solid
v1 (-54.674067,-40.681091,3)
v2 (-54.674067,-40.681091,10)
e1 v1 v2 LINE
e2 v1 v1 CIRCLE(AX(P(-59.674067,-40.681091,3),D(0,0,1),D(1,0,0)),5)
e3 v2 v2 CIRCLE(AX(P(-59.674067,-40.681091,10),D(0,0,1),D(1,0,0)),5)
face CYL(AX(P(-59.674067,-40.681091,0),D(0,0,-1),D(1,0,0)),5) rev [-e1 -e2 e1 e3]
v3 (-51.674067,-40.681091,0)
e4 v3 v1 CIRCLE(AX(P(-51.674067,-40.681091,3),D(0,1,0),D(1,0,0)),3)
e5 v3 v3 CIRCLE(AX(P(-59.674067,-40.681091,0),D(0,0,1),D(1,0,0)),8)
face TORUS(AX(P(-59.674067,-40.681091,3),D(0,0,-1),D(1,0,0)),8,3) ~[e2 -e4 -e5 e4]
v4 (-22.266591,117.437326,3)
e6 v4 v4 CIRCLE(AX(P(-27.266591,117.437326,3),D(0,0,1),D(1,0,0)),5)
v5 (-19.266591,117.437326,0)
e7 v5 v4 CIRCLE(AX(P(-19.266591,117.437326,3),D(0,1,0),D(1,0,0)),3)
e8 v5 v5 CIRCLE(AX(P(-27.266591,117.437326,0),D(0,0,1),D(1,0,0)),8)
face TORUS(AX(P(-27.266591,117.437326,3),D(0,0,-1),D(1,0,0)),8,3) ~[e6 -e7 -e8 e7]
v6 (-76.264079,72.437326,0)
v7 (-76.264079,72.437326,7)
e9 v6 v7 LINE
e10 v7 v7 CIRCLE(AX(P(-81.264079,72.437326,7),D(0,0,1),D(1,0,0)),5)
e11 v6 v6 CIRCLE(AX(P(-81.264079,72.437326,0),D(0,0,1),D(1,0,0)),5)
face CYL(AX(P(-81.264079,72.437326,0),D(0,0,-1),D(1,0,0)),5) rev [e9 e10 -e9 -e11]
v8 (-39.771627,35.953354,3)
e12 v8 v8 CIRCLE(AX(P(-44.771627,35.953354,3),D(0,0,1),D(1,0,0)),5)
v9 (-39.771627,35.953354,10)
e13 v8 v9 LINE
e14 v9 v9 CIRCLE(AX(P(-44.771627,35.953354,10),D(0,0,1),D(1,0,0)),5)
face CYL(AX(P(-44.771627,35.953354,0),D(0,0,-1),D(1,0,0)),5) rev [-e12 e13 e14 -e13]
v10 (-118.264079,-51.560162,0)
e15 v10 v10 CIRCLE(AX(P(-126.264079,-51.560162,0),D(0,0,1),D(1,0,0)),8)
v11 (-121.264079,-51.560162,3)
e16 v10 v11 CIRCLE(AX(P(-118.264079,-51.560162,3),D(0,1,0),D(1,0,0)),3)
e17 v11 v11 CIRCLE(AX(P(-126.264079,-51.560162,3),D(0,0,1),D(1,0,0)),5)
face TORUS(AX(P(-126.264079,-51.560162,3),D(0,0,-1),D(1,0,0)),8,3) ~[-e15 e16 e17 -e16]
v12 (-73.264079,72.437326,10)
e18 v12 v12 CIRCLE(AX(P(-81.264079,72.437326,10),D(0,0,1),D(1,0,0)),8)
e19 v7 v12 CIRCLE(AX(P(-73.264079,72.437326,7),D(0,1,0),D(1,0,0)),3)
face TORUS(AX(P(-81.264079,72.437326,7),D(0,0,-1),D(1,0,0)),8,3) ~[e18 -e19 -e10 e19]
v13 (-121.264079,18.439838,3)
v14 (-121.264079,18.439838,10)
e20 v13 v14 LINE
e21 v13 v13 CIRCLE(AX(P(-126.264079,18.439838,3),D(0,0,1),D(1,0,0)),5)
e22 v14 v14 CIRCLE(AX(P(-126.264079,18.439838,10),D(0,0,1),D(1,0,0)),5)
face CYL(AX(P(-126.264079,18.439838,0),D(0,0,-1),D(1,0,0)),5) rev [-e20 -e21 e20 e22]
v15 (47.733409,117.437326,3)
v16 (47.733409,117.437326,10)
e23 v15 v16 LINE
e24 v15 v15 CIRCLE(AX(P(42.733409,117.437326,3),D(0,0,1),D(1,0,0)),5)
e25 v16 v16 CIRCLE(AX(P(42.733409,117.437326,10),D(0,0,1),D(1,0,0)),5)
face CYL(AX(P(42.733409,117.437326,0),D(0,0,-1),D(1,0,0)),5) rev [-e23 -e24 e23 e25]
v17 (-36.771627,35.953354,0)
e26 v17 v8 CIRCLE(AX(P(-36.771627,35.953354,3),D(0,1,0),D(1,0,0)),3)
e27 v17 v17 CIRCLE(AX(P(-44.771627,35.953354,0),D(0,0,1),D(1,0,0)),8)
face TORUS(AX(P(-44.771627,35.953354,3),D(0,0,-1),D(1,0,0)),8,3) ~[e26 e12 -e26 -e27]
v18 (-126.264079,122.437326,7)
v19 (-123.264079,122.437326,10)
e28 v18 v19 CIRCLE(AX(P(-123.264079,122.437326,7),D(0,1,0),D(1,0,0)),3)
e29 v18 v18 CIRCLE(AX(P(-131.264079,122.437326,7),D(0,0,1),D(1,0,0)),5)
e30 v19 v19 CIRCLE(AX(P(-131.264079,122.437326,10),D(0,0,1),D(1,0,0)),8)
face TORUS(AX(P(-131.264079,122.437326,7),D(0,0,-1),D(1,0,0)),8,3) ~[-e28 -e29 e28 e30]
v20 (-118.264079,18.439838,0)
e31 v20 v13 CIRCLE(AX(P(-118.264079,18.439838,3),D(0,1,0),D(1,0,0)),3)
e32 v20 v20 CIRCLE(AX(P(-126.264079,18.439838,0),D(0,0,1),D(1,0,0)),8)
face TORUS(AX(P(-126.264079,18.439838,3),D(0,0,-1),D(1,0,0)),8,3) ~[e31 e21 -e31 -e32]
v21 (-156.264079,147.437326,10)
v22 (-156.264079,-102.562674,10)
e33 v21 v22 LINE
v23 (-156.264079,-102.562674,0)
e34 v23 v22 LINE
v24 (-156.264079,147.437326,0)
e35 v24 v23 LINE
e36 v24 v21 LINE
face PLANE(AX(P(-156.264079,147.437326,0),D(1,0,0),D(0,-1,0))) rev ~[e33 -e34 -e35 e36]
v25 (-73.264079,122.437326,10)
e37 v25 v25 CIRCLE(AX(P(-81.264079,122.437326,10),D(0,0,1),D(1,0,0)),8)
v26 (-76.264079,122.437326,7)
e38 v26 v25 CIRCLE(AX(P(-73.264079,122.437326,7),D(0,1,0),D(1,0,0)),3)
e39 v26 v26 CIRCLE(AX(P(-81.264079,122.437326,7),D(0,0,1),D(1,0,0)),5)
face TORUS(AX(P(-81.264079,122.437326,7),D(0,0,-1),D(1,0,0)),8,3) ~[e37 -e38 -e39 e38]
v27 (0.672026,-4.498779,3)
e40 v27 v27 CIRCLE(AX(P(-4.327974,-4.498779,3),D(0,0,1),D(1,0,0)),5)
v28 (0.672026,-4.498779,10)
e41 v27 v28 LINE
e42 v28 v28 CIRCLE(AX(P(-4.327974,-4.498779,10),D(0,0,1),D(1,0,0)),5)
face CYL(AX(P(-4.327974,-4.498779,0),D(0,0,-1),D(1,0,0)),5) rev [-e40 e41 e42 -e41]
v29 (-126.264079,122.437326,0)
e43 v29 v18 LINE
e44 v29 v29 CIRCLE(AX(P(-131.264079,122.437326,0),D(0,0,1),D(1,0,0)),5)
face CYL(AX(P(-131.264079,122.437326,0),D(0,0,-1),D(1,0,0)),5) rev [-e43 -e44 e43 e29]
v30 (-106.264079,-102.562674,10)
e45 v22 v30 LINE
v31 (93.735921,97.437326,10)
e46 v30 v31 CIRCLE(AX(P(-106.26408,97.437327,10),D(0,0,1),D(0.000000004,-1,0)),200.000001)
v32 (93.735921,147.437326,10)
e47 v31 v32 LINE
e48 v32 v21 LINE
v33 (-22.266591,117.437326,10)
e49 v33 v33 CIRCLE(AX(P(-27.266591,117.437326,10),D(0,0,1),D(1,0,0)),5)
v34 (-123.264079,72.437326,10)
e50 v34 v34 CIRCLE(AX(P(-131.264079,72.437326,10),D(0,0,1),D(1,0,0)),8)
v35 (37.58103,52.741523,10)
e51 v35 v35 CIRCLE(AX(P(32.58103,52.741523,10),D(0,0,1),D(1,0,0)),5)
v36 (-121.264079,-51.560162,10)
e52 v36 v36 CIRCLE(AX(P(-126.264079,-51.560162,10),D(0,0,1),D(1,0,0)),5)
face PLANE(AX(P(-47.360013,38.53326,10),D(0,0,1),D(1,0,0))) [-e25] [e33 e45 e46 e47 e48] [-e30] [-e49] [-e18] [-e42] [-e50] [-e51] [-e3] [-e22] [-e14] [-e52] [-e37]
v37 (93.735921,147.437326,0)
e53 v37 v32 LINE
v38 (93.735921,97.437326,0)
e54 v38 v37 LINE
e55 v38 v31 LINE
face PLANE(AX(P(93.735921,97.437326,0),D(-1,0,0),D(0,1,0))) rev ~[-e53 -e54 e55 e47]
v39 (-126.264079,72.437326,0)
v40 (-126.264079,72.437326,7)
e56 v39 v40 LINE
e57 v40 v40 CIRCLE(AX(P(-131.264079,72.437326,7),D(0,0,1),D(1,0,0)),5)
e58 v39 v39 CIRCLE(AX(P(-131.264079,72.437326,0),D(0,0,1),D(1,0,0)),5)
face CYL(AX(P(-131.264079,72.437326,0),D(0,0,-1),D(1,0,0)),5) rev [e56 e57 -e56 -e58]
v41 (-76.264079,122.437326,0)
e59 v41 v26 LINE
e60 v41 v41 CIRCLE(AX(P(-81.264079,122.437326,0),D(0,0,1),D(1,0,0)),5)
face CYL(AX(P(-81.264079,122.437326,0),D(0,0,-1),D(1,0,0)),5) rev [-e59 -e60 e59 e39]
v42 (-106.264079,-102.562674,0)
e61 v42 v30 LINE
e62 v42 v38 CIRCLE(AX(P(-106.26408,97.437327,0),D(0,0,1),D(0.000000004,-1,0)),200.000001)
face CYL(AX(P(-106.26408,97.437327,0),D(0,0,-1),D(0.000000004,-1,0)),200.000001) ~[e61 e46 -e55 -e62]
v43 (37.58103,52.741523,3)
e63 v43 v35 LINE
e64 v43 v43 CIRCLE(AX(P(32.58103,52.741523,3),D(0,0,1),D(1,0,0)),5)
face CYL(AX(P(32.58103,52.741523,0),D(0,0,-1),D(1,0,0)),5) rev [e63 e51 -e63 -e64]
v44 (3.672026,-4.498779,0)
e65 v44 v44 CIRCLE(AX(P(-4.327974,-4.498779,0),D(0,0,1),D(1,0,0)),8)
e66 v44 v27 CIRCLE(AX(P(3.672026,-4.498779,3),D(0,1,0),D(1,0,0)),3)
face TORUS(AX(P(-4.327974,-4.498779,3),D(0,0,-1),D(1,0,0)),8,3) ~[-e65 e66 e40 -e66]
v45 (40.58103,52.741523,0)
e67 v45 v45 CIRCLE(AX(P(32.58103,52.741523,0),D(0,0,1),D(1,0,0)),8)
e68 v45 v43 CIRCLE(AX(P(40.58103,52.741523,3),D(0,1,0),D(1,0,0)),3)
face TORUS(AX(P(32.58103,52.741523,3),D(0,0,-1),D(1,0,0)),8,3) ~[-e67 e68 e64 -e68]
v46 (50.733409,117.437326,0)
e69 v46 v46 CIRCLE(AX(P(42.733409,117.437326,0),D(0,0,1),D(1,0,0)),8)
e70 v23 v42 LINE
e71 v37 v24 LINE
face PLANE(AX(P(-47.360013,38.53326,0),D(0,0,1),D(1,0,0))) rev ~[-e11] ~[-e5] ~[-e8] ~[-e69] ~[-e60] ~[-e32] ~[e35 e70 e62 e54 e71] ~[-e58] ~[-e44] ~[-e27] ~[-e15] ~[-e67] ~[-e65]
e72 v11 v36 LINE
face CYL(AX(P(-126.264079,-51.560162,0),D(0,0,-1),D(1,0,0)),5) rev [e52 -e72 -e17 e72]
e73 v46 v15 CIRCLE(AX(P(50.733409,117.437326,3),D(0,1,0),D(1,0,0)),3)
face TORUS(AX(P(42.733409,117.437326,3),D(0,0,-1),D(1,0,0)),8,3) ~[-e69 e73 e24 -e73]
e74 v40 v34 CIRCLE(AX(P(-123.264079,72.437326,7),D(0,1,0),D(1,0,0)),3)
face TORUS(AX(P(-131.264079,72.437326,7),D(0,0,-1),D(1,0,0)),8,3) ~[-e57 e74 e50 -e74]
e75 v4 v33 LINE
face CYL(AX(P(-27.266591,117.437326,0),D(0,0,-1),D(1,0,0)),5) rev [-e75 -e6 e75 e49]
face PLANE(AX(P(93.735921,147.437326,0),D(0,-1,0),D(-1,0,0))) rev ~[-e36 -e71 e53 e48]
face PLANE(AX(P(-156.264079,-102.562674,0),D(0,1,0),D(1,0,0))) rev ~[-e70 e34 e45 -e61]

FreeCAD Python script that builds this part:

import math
import FreeCAD as App
import Part
import Sketcher
from FreeCAD import Vector


def edges_at(feature, points):
    """Names of the edges that pass closest to the given points."""
    edges = feature.Shape.Edges
    near = lambda p: min(range(len(edges)), key=lambda i: edges[i].distToShape(Part.Vertex(*p))[0])
    return sorted({f"Edge{near(p) + 1}" for p in points})

doc = App.newDocument("Part")
params = doc.addObject("Spreadsheet::Sheet", "Params")
for row, (alias, value) in enumerate([
    ("sketch1_diameter", "10 mm"),
    ("sketch1_radius", "200.000001 mm"),
    ("sketch1_width", "250 mm"),
    ("pad1_length", "10 mm"),
    ("fillet_radius", "3 mm"),
    ("fillet2_radius", "3 mm"),
], start=1):
    params.set(f"A{row}", alias)
    params.set(f"B{row}", "=" + value)
    params.setAlias(f"B{row}", alias)

body = doc.addObject("PartDesign::Body", "Body")

# Sketch on XY plane
sketch1 = body.newObject("Sketcher::SketchObject", "Sketch")
sketch1.AttachmentSupport = (doc.getObject("XY_Plane"), [""])
sketch1.MapMode = "FlatFace"
sketch1.addGeometry(Part.LineSegment(Vector(94, 147, 0), Vector(-156, 147, 0)), False)
sketch1.addGeometry(Part.LineSegment(Vector(-156, 147, 0), Vector(-156, -103, 0)), False)
sketch1.addGeometry(Part.LineSegment(Vector(-156, -103, 0), Vector(-106, -103, 0)), False)
sketch1.addGeometry(Part.ArcOfCircle(Part.Circle(Vector(-106, 97, 0), Vector(0, 0, 1), 200), math.radians(-90), math.radians(0)), False)
sketch1.addGeometry(Part.LineSegment(Vector(94, 97, 0), Vector(94, 147, 0)), False)
sketch1.addGeometry(Part.Circle(Vector(-126, -52, 0), Vector(0, 0, 1), 5), False)
sketch1.addGeometry(Part.Circle(Vector(-60, -41, 0), Vector(0, 0, 1), 5), False)
sketch1.addGeometry(Part.Circle(Vector(-126, 18, 0), Vector(0, 0, 1), 5), False)
sketch1.addGeometry(Part.Circle(Vector(-4, -4, 0), Vector(0, 0, 1), 5), False)
sketch1.addGeometry(Part.Circle(Vector(-131, 72, 0), Vector(0, 0, 1), 5), False)
sketch1.addGeometry(Part.Circle(Vector(-45, 36, 0), Vector(0, 0, 1), 5), False)
sketch1.addGeometry(Part.Circle(Vector(-81, 72, 0), Vector(0, 0, 1), 5), False)
sketch1.addGeometry(Part.Circle(Vector(-131, 122, 0), Vector(0, 0, 1), 5), False)
sketch1.addGeometry(Part.Circle(Vector(-81, 122, 0), Vector(0, 0, 1), 5), False)
sketch1.addGeometry(Part.Circle(Vector(33, 53, 0), Vector(0, 0, 1), 5), False)
sketch1.addGeometry(Part.Circle(Vector(-27, 117, 0), Vector(0, 0, 1), 5), False)
sketch1.addGeometry(Part.Circle(Vector(43, 117, 0), Vector(0, 0, 1), 5), False)
sketch1.addConstraint(Sketcher.Constraint("Coincident", 0, 2, 1, 1))
sketch1.addConstraint(Sketcher.Constraint("Coincident", 1, 2, 2, 1))
sketch1.addConstraint(Sketcher.Constraint("Tangent", 2, 2, 3, 1))
sketch1.addConstraint(Sketcher.Constraint("Tangent", 3, 2, 4, 1))
sketch1.addConstraint(Sketcher.Constraint("Coincident", 4, 2, 0, 1))
sketch1.addConstraint(Sketcher.Constraint("Horizontal", 0))
sketch1.addConstraint(Sketcher.Constraint("Vertical", 1))
sketch1.addConstraint(Sketcher.Constraint("Horizontal", 2))
sketch1.addConstraint(Sketcher.Constraint("Vertical", 4))
sketch1.addConstraint(Sketcher.Constraint("Equal", 5, 6))
sketch1.addConstraint(Sketcher.Constraint("Equal", 6, 7))
sketch1.addConstraint(Sketcher.Constraint("Equal", 7, 8))
sketch1.addConstraint(Sketcher.Constraint("Equal", 8, 9))
sketch1.addConstraint(Sketcher.Constraint("Equal", 9, 10))
sketch1.addConstraint(Sketcher.Constraint("Equal", 10, 11))
sketch1.addConstraint(Sketcher.Constraint("Equal", 11, 12))
sketch1.addConstraint(Sketcher.Constraint("Equal", 12, 13))
sketch1.addConstraint(Sketcher.Constraint("Equal", 13, 14))
sketch1.addConstraint(Sketcher.Constraint("Equal", 14, 15))
sketch1.addConstraint(Sketcher.Constraint("Equal", 15, 16))
sketch1.addConstraint(Sketcher.Constraint("Horizontal", 9, 3, 11, 3))
sketch1.addConstraint(Sketcher.Constraint("Horizontal", 12, 3, 13, 3))
sketch1.addConstraint(Sketcher.Constraint("Horizontal", 15, 3, 16, 3))
sketch1.addConstraint(Sketcher.Constraint("Vertical", 5, 3, 7, 3))
sketch1.addConstraint(Sketcher.Constraint("Vertical", 9, 3, 12, 3))
sketch1.addConstraint(Sketcher.Constraint("Vertical", 11, 3, 13, 3))
sketch1.addConstraint(Sketcher.Constraint("Equal", 0, 1))
sketch1.addConstraint(Sketcher.Constraint("Diameter", 5, 10.0))
sketch1.addConstraint(Sketcher.Constraint("Radius", 3, 200.000001))
sketch1.addConstraint(Sketcher.Constraint("DistanceX", 0, 2, 0, 1, 250.0))
sketch1.addConstraint(Sketcher.Constraint("DistanceX", 5, 3, 3, 3, 19.999999))
sketch1.addConstraint(Sketcher.Constraint("DistanceY", 5, 3, 7, 3, 70.0))
sketch1.addConstraint(Sketcher.Constraint("DistanceX", 9, 3, 3, 3, 24.999999))
sketch1.addConstraint(Sketcher.Constraint("DistanceY", 9, 3, 3, 3, 25.000001))
sketch1.addConstraint(Sketcher.Constraint("DistanceX", 3, 3, 11, 3, 25.000001))
sketch1.addConstraint(Sketcher.Constraint("DistanceY", 3, 3, 12, 3, 24.999999))
sketch1.addConstraint(Sketcher.Constraint("DistanceY", 15, 3, 13, 3, 5.0))
sketch1.addConstraint(Sketcher.Constraint("DistanceX", 15, 3, 16, 3, 70.0))
sketch1.addConstraint(Sketcher.Constraint("DistanceX", 3, 3, -1, 1, 106.26408))
sketch1.addConstraint(Sketcher.Constraint("DistanceY", 5, 3, -1, 1, 51.560162))
sketch1.addConstraint(Sketcher.Constraint("DistanceY", 6, 3, -1, 1, 40.681091))
sketch1.addConstraint(Sketcher.Constraint("DistanceY", 8, 3, -1, 1, 4.498779))
sketch1.addConstraint(Sketcher.Constraint("DistanceX", -1, 1, 14, 3, 32.58103))
sketch1.addConstraint(Sketcher.Constraint("DistanceX", 15, 3, -1, 1, 27.266591))
sketch1.addConstraint(Sketcher.Constraint("DistanceY", 5, 3, 3, 3, 148.997489))
sketch1.addConstraint(Sketcher.Constraint("DistanceX", 5, 3, 6, 3, 66.590012))
sketch1.addConstraint(Sketcher.Constraint("DistanceX", 6, 3, 10, 3, 14.90244))
sketch1.addConstraint(Sketcher.Constraint("DistanceY", 10, 3, 12, 3, 86.483972))
sketch1.addConstraint(Sketcher.Constraint("DistanceY", 10, 3, 14, 3, 16.788169))
sketch1.addConstraint(Sketcher.Constraint("DistanceX", 8, 3, -1, 1, 4.327974))
sketch1.setExpression("Constraints[27]", "Params.sketch1_diameter")
sketch1.setExpression("Constraints[28]", "Params.sketch1_radius")
sketch1.setExpression("Constraints[29]", "Params.sketch1_width")
pad1 = body.newObject("PartDesign::Pad", "Pad")
pad1.Profile = sketch1
pad1.setExpression("Length", "Params.pad1_length")
doc.recompute()

fillet = body.newObject("PartDesign::Fillet", "Fillet")
fillet.Base = (pad1, edges_at(pad1, [
    (-136.264, 122.437, 10),
    (-86.264, 122.437, 10),
    (-136.264, 72.437, 10),
    (-86.264, 72.437, 10),
]))
fillet.setExpression("Radius", "Params.fillet_radius")
doc.recompute()

fillet2 = body.newObject("PartDesign::Fillet", "Fillet001")
fillet2.Base = (fillet, edges_at(fillet, [
    (-131.264, -51.56, 0),
    (-64.674, -40.681, 0),
    (-9.328, -4.499, 0),
    (27.581, 52.742, 0),
    (37.733, 117.437, 0),
    (-32.267, 117.437, 0),
    (-49.772, 35.953, 0),
    (-131.264, 18.44, 0),
]))
fillet2.setExpression("Radius", "Params.fillet2_radius")

doc.recompute()
